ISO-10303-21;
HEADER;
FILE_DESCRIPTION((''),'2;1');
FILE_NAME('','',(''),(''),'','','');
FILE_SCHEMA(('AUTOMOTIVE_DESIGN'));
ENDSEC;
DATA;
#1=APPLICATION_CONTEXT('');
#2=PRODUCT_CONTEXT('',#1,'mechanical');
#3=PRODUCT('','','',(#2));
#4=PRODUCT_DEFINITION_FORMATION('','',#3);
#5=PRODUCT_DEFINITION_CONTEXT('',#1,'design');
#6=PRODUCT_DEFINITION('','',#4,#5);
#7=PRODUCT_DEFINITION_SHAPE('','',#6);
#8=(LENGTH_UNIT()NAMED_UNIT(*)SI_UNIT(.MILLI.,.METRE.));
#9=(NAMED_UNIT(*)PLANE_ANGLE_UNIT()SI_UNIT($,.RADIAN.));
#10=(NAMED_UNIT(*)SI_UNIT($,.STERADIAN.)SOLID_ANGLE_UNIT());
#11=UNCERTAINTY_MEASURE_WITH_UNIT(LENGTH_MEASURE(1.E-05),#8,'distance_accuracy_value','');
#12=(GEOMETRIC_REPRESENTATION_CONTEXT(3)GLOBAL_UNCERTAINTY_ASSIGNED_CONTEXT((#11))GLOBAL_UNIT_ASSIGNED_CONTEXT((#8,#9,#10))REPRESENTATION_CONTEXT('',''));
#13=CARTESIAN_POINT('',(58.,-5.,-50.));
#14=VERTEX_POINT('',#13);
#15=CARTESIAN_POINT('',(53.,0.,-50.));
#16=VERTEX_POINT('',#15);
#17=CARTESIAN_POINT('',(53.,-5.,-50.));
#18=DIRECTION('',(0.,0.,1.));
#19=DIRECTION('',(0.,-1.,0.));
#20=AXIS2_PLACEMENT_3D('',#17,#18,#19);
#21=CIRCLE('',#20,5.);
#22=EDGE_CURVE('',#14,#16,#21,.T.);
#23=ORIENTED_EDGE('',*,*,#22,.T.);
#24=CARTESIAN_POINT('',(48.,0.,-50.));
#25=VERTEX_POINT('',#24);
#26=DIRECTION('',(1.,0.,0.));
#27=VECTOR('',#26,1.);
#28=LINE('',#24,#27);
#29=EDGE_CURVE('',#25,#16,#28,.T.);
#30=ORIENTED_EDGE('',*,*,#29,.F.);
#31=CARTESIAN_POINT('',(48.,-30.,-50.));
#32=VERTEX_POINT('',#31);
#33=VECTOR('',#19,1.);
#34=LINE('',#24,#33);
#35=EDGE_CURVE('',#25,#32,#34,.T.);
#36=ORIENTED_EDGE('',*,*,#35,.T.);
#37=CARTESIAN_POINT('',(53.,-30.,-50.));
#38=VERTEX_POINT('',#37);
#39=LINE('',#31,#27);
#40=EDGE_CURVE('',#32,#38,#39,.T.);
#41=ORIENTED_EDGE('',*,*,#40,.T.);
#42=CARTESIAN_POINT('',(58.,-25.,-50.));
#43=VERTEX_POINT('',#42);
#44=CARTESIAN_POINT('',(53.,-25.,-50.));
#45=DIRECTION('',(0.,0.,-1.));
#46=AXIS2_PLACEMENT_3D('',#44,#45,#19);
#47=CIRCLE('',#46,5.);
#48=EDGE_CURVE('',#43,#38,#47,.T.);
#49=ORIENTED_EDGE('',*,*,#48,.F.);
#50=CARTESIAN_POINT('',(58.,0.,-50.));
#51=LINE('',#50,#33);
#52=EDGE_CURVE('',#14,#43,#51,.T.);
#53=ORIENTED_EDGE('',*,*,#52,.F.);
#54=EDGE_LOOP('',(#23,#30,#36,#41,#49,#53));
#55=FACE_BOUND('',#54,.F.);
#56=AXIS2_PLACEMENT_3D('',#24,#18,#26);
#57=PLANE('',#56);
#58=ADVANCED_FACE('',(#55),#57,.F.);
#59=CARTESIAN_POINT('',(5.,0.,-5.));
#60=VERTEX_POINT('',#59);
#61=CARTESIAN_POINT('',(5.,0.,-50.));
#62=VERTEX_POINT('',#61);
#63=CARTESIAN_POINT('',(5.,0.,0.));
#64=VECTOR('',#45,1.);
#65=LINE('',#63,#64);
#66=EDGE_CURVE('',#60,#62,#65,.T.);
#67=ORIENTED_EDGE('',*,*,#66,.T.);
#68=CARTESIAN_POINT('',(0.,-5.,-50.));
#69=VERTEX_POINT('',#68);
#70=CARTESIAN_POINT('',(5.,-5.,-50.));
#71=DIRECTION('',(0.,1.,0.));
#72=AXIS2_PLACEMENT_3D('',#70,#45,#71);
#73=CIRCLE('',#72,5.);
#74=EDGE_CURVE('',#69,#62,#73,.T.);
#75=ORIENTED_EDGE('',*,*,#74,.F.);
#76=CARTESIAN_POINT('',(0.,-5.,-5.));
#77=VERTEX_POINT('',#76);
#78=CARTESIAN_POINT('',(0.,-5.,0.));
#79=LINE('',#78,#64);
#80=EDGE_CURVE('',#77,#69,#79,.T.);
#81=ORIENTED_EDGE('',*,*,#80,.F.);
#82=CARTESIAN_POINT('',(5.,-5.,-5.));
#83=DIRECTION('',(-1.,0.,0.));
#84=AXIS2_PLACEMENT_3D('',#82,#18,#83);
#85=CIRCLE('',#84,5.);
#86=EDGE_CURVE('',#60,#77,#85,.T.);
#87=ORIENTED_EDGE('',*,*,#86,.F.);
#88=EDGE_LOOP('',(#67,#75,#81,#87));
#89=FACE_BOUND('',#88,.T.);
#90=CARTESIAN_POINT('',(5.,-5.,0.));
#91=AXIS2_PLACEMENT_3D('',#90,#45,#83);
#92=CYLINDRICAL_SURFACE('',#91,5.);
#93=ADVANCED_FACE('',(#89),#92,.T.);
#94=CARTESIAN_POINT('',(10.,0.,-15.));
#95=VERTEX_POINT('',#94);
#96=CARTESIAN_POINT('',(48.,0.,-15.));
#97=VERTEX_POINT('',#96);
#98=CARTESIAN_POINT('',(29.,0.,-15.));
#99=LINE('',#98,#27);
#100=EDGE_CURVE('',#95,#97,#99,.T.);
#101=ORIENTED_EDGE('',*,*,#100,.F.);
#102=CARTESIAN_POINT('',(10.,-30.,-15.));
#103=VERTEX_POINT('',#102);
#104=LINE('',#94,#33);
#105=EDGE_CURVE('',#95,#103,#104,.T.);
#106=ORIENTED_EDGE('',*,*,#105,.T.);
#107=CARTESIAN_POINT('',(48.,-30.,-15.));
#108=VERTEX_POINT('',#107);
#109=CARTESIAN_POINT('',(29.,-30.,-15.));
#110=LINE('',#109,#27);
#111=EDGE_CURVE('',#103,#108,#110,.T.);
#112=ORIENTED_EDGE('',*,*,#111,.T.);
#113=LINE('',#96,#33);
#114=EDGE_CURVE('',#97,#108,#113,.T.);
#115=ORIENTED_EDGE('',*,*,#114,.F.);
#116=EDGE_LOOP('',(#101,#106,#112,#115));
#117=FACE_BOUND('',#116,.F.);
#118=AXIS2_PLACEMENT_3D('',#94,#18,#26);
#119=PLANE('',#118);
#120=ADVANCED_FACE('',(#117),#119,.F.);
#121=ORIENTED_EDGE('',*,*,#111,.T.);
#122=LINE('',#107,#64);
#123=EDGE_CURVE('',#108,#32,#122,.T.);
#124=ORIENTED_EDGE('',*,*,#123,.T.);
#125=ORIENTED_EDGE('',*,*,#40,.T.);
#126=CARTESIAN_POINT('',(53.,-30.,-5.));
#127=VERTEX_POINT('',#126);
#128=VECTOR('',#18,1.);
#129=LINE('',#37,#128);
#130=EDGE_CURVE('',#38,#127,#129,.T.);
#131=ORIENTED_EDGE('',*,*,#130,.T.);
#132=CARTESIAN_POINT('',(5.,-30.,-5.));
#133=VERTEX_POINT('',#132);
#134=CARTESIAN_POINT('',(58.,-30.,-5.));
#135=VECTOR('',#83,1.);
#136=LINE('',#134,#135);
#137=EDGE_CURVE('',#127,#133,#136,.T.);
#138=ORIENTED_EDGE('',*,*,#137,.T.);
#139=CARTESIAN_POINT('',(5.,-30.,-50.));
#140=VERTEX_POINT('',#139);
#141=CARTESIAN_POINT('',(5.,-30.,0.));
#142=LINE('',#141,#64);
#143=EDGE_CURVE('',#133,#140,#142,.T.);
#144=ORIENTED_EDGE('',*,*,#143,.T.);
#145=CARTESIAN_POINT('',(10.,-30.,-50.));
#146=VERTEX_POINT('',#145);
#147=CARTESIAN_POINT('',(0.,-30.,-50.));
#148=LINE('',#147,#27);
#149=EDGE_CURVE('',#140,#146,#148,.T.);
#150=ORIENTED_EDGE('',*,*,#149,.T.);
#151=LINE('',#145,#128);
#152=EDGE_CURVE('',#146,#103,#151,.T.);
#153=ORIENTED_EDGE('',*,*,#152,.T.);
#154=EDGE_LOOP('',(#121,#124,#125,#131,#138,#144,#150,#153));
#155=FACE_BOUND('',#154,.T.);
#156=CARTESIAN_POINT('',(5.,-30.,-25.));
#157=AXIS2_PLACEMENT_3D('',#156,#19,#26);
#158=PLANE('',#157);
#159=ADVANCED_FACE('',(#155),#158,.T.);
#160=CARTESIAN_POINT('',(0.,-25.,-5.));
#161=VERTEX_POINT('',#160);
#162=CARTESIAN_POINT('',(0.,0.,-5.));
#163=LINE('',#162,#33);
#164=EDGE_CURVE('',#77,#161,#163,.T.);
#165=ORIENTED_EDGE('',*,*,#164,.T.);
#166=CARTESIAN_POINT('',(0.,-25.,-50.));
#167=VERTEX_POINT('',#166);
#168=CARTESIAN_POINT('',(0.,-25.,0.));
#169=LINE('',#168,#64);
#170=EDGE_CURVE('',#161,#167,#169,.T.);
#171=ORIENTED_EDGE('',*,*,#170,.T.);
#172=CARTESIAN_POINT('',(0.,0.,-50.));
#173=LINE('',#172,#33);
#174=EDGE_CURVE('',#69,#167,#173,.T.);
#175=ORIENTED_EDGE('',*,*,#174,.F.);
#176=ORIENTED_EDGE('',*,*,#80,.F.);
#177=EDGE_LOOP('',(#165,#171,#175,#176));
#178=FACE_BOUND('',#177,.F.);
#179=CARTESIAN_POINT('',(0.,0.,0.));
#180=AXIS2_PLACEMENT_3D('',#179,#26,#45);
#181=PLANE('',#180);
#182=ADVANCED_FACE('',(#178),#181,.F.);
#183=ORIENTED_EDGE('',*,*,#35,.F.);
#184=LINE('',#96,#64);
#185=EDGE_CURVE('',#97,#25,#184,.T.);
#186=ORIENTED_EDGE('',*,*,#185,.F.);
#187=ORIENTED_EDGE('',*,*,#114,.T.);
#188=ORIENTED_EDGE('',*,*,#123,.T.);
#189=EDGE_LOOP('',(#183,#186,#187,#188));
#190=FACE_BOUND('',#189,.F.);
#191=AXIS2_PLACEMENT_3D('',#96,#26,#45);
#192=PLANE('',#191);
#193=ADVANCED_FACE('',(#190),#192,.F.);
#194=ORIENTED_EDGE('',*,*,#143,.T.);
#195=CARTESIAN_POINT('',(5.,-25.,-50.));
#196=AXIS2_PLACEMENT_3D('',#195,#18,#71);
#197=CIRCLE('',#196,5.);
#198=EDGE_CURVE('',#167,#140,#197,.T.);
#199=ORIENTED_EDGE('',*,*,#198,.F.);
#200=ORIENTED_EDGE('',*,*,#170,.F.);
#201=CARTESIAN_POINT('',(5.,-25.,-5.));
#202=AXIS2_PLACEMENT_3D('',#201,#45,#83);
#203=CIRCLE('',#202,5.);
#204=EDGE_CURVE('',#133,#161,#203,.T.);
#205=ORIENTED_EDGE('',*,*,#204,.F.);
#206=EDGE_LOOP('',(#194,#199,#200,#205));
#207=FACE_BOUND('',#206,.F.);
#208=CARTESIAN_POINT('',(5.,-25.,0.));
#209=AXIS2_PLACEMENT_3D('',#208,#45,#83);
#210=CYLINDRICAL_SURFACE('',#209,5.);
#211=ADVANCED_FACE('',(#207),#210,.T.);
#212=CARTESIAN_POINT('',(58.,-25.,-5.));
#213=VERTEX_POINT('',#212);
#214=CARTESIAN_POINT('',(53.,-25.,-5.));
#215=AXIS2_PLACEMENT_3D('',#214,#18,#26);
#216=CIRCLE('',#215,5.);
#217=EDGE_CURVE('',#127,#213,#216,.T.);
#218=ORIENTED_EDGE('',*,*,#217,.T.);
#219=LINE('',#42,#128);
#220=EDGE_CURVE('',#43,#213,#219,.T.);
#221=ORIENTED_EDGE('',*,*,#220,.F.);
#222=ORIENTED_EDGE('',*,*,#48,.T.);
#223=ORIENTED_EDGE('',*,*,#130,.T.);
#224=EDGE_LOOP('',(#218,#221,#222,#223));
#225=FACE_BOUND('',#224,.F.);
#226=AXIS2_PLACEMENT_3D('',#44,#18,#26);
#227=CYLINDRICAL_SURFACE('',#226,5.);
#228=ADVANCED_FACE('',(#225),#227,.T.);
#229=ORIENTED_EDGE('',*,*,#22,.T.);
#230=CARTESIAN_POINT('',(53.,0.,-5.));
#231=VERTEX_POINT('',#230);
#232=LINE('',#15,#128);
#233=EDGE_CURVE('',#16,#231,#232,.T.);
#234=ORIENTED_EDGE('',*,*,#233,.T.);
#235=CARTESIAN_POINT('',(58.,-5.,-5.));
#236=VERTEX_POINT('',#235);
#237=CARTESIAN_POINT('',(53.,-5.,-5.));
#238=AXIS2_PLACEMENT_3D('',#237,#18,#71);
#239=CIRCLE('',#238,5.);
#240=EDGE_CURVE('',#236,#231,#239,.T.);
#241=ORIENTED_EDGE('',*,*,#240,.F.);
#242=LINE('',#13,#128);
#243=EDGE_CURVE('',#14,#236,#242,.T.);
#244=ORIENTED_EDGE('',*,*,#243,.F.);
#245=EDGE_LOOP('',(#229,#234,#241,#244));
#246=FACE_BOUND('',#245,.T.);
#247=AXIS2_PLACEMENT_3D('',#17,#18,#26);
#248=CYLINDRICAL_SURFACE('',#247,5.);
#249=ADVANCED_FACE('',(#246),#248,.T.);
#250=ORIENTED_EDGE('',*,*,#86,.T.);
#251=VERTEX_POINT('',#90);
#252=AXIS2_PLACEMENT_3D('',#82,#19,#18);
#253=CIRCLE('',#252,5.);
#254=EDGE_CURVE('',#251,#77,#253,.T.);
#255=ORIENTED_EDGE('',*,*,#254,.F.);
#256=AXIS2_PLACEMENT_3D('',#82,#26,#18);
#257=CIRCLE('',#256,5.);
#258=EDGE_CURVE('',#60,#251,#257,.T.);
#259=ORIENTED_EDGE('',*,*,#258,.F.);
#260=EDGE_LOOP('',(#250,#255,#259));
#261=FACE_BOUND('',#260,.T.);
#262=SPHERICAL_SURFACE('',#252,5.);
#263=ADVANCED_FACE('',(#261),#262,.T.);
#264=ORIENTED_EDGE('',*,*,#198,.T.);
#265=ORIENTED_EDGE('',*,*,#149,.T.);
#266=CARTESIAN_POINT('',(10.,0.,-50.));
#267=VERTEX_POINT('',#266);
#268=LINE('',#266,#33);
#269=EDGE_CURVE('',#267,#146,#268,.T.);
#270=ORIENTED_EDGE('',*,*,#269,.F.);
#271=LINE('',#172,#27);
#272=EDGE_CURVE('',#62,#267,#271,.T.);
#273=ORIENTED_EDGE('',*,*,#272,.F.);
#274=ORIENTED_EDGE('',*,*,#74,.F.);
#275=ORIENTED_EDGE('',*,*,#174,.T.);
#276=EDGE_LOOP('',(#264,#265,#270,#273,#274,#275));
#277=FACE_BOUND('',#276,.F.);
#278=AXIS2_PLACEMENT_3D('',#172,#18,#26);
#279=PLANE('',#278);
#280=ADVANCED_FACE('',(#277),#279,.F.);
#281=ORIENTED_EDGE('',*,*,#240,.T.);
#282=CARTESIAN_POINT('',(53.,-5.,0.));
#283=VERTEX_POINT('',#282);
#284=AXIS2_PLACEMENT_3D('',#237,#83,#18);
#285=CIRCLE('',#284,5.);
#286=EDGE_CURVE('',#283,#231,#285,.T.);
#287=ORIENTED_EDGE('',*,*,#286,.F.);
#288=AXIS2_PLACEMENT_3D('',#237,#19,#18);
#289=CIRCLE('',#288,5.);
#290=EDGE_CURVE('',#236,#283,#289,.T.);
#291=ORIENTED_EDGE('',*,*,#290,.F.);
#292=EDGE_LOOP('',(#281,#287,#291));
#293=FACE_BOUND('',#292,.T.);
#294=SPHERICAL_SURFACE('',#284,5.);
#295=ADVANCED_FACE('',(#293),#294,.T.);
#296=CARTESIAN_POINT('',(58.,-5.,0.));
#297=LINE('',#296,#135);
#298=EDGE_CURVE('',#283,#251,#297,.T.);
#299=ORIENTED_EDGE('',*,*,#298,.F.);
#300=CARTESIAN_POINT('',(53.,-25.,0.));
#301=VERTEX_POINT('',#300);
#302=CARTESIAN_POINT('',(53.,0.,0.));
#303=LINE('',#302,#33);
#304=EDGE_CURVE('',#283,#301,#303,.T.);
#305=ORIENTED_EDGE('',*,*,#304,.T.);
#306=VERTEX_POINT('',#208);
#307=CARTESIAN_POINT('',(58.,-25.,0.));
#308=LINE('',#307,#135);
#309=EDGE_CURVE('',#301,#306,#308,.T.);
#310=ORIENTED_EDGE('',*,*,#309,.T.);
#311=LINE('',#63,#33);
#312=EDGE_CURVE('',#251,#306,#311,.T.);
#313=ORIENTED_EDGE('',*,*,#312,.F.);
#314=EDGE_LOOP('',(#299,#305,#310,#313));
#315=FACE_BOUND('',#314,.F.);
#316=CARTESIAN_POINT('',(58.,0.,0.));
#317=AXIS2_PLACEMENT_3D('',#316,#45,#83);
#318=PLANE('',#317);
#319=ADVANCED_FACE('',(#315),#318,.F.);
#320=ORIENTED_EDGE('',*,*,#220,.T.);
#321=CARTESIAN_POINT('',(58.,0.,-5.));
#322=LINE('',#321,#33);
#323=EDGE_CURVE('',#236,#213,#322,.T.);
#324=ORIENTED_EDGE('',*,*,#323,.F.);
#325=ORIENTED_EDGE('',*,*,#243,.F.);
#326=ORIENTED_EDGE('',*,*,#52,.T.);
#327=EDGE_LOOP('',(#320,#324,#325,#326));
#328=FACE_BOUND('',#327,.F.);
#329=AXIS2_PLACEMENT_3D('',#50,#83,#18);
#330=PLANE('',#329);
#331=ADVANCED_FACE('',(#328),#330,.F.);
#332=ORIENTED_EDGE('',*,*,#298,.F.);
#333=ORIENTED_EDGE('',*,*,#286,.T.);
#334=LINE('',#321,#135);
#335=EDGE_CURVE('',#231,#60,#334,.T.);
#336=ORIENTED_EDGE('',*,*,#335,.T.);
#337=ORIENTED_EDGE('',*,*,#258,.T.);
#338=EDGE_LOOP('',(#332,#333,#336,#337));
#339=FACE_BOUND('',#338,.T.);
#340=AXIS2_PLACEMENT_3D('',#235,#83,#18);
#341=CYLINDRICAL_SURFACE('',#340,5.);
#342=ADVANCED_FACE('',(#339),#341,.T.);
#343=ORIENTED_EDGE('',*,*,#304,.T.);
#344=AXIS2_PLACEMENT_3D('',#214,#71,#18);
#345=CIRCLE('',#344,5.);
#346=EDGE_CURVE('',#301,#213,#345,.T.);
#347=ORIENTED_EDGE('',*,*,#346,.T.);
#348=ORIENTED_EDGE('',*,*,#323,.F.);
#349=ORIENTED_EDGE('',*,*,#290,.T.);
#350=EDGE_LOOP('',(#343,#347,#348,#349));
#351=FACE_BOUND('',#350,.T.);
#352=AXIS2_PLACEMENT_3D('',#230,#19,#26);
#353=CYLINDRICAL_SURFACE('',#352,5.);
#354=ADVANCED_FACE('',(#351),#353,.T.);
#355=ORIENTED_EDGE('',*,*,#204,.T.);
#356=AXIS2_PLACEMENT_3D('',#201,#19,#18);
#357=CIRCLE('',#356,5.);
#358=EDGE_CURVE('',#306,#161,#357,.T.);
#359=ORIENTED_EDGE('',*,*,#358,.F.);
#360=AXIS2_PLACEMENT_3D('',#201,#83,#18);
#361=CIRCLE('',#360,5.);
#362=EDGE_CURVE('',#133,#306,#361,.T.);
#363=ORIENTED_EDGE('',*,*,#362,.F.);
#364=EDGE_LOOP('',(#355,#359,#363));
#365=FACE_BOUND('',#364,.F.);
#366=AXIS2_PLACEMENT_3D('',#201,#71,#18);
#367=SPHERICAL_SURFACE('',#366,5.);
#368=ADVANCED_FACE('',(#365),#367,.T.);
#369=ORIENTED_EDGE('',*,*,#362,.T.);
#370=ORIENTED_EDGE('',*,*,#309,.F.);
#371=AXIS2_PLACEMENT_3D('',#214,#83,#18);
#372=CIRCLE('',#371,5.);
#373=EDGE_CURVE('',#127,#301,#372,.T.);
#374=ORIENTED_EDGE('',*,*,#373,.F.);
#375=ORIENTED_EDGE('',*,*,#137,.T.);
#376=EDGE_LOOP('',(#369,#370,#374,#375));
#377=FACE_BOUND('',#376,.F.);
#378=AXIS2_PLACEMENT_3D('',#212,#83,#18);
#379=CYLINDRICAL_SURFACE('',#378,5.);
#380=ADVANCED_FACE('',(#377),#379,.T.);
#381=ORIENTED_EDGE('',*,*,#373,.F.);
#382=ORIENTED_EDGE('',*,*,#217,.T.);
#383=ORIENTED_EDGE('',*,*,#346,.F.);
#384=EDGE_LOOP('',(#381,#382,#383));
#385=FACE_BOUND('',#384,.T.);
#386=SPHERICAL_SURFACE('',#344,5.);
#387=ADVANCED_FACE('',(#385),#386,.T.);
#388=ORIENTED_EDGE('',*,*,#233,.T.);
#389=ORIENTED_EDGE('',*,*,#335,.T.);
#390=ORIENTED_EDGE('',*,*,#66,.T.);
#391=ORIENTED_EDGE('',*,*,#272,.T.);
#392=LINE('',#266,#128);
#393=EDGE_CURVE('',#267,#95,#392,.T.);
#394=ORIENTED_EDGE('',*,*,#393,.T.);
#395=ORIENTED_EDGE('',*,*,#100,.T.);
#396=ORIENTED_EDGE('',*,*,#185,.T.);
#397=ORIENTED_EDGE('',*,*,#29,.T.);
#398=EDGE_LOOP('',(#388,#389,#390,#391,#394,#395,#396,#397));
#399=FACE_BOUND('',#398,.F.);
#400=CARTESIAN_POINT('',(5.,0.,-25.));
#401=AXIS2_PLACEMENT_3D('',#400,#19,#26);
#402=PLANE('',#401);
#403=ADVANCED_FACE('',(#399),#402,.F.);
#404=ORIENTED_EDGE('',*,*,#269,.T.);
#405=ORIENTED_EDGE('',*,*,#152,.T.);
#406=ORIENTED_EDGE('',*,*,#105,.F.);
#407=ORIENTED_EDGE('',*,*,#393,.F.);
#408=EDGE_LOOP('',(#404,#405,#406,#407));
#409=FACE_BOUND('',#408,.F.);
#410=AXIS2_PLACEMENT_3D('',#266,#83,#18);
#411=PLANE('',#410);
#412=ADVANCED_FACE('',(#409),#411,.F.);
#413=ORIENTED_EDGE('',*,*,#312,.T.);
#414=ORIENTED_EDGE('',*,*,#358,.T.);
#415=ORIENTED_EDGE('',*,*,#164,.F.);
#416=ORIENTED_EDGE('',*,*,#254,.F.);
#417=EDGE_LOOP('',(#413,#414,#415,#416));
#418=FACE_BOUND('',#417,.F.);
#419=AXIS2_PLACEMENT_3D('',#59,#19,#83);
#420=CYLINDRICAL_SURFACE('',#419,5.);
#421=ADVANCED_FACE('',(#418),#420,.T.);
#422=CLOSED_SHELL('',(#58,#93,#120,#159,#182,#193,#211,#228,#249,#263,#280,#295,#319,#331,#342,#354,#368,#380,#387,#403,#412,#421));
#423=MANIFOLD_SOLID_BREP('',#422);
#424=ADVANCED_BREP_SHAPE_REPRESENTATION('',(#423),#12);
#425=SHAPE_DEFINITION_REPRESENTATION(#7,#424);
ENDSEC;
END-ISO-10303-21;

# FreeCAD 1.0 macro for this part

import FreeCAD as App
import Part
import Sketcher


def edges_at(feature, points):
    """Names of the edges that pass closest to the given points."""
    edges = feature.Shape.Edges
    near = lambda p: min(range(len(edges)), key=lambda i: edges[i].distToShape(Part.Vertex(*p))[0])
    return sorted({f"Edge{near(p) + 1}" for p in points})

doc = App.newDocument("Part")
body = doc.addObject("PartDesign::Body", "Body")

# Sketch on XZ plane
sketch1 = body.newObject("Sketcher::SketchObject", "Sketch")
sketch1.AttachmentSupport = (doc.getObject("XZ_Plane"), [""])
sketch1.MapMode = "FlatFace"
sketch1.addGeometry([
    Part.LineSegment(App.Vector(0, 0, 0), App.Vector(0, -50, 0)),  # 0
    Part.LineSegment(App.Vector(0, -50, 0), App.Vector(10, -50, 0)),  # 1
    Part.LineSegment(App.Vector(10, -50, 0), App.Vector(10, -15, 0)),  # 2
    Part.LineSegment(App.Vector(10, -15, 0), App.Vector(48, -15, 0)),  # 3
    Part.LineSegment(App.Vector(48, -15, 0), App.Vector(48, -50, 0)),  # 4
    Part.LineSegment(App.Vector(48, -50, 0), App.Vector(58, -50, 0)),  # 5
    Part.LineSegment(App.Vector(58, -50, 0), App.Vector(58, 0, 0)),  # 6
    Part.LineSegment(App.Vector(58, 0, 0), App.Vector(0, 0, 0)),  # 7
], False)
sketch1.addConstraint([
    Sketcher.Constraint("Coincident", 0, 2, 1, 1),
    Sketcher.Constraint("Coincident", 1, 2, 2, 1),
    Sketcher.Constraint("Coincident", 2, 2, 3, 1),
    Sketcher.Constraint("Coincident", 3, 2, 4, 1),
    Sketcher.Constraint("Coincident", 4, 2, 5, 1),
    Sketcher.Constraint("Coincident", 5, 2, 6, 1),
    Sketcher.Constraint("Coincident", 6, 2, 7, 1),
    Sketcher.Constraint("Coincident", 7, 2, 0, 1),
    Sketcher.Constraint("Vertical", 0),
    Sketcher.Constraint("Horizontal", 1),
    Sketcher.Constraint("Vertical", 2),
    Sketcher.Constraint("Horizontal", 3),
    Sketcher.Constraint("Vertical", 4),
    Sketcher.Constraint("Horizontal", 5),
    Sketcher.Constraint("Vertical", 6),
    Sketcher.Constraint("Horizontal", 7),
    Sketcher.Constraint("Coincident", 7, 2, -1, 1),
    Sketcher.Constraint("Horizontal", 1, 2, 4, 2),
    Sketcher.Constraint("Equal", 1, 5),
    Sketcher.Constraint("DistanceX", 1, 1, 1, 2, 10.0),
    Sketcher.Constraint("DistanceX", 3, 1, 3, 2, 38.0),
    Sketcher.Constraint("DistanceY", 0, 2, 0, 1, 50.0),
    Sketcher.Constraint("DistanceY", 2, 1, 2, 2, 35.0),
])
pad1 = body.newObject("PartDesign::Pad", "Pad")
pad1.Profile = sketch1
pad1.Length = 30
doc.recompute()

fillet = body.newObject("PartDesign::Fillet", "Fillet")
fillet.Base = (pad1, edges_at(pad1, [
    (0, -15, 0),
    (29, 0, 0),
    (58, -15, 0),
    (29, -30, 0),
    (0, 0, -25),
    (0, -30, -25),
    (58, -30, -25),
    (58, 0, -25),
]))
fillet.Radius = 5

doc.recompute()
